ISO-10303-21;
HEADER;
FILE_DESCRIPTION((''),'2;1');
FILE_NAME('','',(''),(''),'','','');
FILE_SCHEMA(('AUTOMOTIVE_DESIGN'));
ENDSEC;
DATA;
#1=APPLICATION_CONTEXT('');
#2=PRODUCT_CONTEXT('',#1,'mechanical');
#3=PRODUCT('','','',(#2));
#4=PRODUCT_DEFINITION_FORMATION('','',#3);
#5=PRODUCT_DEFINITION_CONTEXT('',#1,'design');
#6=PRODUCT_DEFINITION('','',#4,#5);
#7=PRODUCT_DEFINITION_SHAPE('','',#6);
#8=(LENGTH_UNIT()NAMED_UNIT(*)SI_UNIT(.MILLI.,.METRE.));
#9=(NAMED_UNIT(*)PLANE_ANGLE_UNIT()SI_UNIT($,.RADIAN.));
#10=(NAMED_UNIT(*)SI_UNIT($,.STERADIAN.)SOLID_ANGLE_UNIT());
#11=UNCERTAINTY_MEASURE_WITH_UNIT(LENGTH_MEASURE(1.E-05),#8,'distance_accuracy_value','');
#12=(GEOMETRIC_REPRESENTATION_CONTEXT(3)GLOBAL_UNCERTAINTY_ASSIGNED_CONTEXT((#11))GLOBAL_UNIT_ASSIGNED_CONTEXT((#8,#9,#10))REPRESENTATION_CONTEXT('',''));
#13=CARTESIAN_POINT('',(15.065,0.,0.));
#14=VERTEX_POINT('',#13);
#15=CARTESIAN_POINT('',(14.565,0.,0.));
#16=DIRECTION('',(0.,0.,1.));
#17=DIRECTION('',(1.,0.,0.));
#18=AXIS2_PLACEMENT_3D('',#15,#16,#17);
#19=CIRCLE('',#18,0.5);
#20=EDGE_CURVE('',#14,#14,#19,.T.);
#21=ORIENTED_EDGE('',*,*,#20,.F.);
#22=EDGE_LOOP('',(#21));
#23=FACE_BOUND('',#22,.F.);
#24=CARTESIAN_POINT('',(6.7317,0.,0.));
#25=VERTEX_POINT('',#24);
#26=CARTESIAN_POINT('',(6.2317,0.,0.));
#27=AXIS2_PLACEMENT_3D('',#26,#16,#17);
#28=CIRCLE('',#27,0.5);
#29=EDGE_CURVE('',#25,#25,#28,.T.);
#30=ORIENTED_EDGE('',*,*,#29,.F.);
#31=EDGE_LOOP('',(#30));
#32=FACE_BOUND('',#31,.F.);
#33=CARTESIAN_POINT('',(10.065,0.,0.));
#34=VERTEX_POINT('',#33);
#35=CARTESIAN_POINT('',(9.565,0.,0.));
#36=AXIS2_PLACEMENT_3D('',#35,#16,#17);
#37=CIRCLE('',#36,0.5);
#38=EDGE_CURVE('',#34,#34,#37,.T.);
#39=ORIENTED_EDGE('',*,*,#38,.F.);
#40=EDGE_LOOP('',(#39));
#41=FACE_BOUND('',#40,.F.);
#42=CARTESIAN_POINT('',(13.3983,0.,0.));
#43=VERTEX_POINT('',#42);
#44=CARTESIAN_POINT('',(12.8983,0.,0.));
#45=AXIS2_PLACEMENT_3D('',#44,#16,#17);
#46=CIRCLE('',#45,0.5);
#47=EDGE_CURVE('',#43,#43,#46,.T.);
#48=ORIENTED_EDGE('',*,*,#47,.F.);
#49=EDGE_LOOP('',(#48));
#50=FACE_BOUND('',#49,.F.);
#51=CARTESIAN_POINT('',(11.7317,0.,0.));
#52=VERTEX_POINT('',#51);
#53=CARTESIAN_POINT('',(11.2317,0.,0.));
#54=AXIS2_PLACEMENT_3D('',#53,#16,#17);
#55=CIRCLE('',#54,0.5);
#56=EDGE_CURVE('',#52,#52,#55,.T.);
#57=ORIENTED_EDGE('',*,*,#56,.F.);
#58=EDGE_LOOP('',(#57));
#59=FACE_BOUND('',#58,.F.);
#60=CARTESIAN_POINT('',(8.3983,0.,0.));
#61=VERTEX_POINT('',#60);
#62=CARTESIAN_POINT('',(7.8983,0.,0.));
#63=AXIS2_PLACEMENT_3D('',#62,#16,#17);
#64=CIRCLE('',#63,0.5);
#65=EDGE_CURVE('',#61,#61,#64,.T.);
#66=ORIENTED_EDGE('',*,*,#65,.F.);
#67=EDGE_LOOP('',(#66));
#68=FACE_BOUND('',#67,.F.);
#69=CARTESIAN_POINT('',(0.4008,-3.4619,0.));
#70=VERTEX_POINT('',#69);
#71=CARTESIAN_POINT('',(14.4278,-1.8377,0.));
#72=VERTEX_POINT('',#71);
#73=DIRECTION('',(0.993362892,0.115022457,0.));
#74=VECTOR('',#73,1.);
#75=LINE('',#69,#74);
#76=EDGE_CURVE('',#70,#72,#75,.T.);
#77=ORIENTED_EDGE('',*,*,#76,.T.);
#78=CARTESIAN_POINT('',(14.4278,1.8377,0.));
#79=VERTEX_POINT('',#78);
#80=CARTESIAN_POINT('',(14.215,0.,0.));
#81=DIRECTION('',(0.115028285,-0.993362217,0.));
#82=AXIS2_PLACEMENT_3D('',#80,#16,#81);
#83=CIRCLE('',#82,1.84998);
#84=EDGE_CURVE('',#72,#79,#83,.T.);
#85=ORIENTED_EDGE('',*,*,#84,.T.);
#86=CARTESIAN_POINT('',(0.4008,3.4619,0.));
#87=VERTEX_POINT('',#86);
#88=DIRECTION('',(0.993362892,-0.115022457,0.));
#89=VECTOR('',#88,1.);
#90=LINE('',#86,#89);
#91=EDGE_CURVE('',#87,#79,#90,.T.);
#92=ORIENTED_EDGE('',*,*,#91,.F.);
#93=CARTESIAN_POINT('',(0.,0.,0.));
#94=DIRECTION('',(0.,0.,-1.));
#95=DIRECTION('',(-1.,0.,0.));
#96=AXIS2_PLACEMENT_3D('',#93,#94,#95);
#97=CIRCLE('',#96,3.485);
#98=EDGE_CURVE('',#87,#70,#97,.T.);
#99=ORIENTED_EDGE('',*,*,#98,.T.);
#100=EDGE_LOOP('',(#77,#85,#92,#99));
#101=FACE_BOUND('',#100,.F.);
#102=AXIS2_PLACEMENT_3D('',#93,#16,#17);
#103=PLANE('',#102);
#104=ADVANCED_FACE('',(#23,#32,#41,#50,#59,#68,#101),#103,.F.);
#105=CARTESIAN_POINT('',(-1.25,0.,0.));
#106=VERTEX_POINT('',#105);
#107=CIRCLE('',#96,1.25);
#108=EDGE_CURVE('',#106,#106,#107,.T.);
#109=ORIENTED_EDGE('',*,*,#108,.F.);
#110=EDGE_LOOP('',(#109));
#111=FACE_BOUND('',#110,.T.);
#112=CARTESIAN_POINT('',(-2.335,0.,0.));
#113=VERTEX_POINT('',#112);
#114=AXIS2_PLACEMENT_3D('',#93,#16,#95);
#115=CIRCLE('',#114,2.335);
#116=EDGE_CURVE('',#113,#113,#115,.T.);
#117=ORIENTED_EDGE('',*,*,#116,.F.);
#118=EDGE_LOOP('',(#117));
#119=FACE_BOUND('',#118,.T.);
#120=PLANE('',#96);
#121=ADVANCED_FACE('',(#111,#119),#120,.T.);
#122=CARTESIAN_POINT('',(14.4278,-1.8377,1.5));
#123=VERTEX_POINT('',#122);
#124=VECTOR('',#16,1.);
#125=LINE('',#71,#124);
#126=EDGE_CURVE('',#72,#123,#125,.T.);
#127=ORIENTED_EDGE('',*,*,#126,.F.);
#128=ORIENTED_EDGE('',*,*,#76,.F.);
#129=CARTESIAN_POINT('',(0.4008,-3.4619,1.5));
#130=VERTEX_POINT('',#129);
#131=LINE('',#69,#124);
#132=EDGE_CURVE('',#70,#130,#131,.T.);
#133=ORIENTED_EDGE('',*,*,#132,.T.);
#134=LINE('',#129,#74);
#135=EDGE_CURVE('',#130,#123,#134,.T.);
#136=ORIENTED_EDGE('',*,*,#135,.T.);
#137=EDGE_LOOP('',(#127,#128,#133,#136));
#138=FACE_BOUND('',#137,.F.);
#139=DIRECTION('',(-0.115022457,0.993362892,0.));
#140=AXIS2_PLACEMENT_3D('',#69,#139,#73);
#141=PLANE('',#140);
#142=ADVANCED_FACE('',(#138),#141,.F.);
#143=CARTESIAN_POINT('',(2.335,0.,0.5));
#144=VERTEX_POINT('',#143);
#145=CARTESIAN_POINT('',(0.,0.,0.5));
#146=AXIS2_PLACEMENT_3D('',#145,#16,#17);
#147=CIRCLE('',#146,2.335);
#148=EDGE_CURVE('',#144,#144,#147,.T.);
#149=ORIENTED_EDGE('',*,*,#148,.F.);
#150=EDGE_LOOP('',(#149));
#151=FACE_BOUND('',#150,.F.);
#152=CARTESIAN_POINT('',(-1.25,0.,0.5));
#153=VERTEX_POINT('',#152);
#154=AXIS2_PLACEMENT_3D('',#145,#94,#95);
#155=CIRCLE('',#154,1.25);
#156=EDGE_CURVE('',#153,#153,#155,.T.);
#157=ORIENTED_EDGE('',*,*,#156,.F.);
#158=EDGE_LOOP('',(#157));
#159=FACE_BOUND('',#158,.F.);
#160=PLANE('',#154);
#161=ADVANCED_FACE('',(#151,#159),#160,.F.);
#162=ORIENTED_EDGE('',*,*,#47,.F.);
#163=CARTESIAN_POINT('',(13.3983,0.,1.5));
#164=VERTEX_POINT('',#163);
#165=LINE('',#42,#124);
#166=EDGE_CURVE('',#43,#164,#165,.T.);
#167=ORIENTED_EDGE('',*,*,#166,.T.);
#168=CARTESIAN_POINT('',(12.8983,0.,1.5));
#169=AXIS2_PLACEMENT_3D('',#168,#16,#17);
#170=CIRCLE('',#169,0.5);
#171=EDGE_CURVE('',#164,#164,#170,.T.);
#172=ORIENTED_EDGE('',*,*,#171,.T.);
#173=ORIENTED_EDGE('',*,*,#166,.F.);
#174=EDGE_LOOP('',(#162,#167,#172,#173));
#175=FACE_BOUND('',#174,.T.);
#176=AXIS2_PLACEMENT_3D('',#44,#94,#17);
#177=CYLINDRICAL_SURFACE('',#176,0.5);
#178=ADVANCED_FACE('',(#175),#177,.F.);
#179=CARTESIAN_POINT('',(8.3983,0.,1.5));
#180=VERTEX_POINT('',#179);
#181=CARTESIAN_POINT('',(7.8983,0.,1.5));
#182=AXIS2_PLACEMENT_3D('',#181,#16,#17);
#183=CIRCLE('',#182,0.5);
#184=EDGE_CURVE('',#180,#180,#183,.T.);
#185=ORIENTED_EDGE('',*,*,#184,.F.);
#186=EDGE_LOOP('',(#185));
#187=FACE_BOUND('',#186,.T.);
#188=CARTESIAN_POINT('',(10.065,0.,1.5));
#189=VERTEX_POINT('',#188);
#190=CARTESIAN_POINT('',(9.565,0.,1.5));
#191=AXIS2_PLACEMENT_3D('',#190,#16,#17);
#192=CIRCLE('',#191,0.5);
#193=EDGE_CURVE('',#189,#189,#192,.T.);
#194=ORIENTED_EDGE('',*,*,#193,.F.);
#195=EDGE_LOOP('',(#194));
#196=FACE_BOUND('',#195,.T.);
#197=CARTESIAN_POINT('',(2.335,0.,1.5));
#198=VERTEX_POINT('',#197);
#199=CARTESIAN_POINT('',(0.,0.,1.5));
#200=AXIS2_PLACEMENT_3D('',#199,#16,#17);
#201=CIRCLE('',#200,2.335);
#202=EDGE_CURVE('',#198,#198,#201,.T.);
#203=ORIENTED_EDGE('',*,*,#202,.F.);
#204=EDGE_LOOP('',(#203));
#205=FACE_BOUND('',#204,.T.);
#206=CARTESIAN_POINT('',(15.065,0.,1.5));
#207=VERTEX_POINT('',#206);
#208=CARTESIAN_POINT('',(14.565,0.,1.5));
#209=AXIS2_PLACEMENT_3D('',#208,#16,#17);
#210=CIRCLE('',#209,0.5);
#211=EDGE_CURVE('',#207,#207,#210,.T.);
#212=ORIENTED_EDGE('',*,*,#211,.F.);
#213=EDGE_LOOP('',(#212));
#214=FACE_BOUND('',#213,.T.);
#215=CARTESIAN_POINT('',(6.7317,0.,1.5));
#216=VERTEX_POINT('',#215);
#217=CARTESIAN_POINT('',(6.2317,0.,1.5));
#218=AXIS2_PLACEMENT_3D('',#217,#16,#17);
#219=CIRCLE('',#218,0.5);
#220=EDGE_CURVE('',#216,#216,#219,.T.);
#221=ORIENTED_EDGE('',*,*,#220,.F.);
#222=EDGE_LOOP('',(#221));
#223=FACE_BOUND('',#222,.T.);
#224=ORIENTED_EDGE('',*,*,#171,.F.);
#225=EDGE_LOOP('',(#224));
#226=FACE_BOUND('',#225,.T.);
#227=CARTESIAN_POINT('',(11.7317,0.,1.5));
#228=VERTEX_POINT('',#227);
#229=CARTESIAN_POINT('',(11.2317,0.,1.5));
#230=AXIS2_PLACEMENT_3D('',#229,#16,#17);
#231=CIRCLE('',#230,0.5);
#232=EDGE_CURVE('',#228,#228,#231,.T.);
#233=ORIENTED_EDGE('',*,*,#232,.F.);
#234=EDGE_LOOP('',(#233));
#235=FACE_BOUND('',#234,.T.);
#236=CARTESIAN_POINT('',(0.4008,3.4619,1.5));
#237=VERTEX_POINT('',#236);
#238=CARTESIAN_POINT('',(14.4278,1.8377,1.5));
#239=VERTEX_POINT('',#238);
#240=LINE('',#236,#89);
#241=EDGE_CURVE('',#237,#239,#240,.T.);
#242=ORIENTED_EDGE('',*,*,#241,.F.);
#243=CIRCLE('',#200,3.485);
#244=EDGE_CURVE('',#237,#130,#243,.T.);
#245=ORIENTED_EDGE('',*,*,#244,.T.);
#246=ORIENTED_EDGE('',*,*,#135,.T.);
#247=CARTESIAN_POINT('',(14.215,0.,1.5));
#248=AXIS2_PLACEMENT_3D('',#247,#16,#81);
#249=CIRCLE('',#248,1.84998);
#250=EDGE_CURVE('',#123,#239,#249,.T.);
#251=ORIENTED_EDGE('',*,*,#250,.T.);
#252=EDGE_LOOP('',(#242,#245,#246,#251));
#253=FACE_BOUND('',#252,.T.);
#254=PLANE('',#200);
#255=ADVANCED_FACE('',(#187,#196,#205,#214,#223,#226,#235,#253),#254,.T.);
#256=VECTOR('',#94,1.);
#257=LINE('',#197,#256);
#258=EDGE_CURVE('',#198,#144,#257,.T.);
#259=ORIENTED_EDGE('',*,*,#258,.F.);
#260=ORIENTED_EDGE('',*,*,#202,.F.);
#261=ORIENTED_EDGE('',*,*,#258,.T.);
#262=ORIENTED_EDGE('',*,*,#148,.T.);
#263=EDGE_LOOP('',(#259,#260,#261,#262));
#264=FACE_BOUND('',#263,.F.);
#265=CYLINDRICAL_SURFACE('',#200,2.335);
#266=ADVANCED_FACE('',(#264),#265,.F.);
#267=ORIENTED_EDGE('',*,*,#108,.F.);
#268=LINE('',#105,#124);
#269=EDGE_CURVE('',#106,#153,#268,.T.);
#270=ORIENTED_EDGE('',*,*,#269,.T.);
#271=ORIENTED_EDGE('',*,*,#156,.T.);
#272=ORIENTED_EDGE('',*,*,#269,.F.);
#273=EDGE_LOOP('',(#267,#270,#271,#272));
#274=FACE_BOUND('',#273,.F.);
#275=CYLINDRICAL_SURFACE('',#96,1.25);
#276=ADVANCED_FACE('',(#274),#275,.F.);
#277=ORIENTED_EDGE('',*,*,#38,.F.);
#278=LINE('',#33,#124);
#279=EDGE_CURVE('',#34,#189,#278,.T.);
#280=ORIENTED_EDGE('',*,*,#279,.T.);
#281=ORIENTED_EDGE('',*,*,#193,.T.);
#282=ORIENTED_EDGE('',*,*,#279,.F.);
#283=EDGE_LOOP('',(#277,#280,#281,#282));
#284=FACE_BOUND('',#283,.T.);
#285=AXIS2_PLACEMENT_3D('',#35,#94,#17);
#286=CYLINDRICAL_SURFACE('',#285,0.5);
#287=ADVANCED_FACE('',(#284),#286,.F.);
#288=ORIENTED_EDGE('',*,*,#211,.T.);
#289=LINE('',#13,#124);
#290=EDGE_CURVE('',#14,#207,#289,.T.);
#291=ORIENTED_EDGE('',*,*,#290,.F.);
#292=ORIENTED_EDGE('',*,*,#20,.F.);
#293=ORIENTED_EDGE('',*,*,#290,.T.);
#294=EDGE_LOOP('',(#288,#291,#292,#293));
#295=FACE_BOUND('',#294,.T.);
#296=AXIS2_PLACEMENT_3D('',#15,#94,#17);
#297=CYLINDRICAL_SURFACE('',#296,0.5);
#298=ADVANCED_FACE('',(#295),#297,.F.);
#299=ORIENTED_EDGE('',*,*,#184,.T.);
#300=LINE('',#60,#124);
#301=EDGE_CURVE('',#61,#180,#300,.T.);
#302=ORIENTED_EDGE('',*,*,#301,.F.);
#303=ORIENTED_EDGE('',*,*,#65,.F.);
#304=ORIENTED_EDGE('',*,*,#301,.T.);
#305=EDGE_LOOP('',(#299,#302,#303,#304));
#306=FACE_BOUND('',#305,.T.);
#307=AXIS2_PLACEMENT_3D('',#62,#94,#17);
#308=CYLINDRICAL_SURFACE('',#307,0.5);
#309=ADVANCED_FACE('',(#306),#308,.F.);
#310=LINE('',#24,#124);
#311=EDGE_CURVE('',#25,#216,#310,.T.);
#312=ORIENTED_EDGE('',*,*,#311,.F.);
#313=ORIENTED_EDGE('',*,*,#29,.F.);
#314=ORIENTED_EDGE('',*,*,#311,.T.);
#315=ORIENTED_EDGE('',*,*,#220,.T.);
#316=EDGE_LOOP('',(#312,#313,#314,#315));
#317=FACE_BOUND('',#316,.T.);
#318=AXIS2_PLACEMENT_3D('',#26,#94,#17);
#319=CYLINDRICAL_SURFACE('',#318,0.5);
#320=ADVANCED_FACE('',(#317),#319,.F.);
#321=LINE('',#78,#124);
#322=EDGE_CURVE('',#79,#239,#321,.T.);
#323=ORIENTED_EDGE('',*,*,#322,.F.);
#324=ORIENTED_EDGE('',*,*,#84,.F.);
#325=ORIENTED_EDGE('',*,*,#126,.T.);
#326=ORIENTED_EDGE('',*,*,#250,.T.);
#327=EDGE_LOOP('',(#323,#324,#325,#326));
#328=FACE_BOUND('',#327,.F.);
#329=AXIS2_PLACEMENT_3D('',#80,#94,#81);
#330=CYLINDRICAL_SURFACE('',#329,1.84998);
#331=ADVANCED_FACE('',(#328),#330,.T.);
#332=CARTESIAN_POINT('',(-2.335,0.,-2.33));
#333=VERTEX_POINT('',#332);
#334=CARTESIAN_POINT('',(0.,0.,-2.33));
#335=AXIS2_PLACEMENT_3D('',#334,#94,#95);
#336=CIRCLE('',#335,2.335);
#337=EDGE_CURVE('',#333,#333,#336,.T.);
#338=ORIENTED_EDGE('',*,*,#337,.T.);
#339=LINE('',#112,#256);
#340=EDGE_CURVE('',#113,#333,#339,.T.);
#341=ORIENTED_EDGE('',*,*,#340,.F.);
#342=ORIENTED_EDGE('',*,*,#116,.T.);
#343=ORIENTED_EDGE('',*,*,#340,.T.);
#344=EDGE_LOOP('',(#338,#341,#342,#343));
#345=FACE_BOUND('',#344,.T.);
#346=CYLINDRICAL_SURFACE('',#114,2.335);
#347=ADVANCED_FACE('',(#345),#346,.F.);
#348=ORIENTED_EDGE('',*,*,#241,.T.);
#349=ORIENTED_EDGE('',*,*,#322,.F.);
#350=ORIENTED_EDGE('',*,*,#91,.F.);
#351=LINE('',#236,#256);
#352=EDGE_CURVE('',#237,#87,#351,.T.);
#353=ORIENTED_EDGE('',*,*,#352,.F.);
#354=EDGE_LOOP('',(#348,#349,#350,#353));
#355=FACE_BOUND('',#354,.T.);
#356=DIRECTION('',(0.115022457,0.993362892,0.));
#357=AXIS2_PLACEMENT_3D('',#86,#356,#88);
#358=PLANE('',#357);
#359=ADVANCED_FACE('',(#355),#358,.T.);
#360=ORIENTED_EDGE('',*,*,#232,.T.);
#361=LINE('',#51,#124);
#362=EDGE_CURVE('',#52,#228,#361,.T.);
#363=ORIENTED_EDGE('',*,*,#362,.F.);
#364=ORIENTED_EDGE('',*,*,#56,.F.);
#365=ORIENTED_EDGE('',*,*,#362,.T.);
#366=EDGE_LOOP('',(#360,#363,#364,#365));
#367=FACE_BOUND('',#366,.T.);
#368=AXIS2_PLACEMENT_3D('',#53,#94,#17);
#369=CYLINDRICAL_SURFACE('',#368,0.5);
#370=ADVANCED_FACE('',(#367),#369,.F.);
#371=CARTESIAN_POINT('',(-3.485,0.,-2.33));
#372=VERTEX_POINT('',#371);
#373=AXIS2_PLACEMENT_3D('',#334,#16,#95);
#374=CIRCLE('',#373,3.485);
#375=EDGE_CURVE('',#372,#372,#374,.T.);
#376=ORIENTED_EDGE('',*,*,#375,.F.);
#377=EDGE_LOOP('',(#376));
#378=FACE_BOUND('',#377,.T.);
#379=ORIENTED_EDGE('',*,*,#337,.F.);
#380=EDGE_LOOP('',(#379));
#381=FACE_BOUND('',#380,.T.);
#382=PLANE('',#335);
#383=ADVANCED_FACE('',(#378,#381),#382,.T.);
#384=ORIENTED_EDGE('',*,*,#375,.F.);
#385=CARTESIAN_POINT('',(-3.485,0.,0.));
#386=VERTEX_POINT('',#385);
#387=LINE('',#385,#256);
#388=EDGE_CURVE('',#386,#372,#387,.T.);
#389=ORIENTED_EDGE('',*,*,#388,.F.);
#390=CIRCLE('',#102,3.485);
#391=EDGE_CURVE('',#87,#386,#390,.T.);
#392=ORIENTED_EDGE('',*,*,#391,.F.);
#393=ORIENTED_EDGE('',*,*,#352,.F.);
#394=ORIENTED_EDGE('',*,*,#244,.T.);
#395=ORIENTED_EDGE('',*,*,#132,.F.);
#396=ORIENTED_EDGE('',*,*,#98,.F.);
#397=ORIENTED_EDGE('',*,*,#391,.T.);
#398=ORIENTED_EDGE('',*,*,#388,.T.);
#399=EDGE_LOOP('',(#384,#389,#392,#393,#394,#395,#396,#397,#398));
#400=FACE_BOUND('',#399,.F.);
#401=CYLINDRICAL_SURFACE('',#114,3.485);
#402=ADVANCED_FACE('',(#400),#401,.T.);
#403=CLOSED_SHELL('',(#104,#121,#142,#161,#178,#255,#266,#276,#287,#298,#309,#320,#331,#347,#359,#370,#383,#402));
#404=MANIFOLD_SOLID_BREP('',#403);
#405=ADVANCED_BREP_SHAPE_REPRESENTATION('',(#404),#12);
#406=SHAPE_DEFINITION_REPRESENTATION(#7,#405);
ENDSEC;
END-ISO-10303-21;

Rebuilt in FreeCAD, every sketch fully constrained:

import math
import FreeCAD as App
import Part
import Sketcher
Q = App.Units.Quantity

doc = App.newDocument("Part")
params = doc.addObject("Spreadsheet::Sheet", "Params")
for row, (alias, value) in enumerate([
    ("sketch1_diameter", "1 mm"),
    ("sketch1_radius", "1.85 mm"),
    ("pad1_length", "1.5 mm"),
    ("sketch2_diameter", "4.67 mm"),
    ("pocket1_length", "1.5 mm"),
    ("sketch3_diameter", "6.97 mm"),
    ("sketch3_diameter2", "4.67 mm"),
    ("pad2_length", "2.33 mm"),
    ("sketch4_diameter", "2.5 mm"),
    ("sketch4_diameter2", "6.97 mm"),
    ("pad3_length", "0.5 mm"),
], start=1):
    params.set(f"A{row}", alias)
    params.set(f"B{row}", "=" + value)
    params.setAlias(f"B{row}", alias)

body = doc.addObject("PartDesign::Body", "Body")

sketch1 = body.newObject("Sketcher::SketchObject", "Sketch")
sketch1.AttachmentSupport = (doc.getObject("XY_Plane"), [""])
sketch1.MapMode = "FlatFace"
sketch1.addGeometry([
    Part.ArcOfCircle(Part.Circle(App.Vector(0, 0, 0), App.Vector(0, 0, 1), 3.5), math.radians(83), math.radians(277)),
    Part.LineSegment(App.Vector(0.4, -3.5, 0), App.Vector(14.4, -1.8, 0)),
    Part.ArcOfCircle(Part.Circle(App.Vector(14.2, 0, 0), App.Vector(0, 0, 1), 1.8), math.radians(-83), math.radians(83)),
    Part.LineSegment(App.Vector(14.4, 1.8, 0), App.Vector(0.4, 3.5, 0)),
    Part.Circle(App.Vector(12.9, 0, 0), App.Vector(0, 0, 1), 0.5),
    Part.Circle(App.Vector(14.6, 0, 0), App.Vector(0, 0, 1), 0.5),
    Part.Circle(App.Vector(6.2, 0, 0), App.Vector(0, 0, 1), 0.5),
    Part.Circle(App.Vector(7.9, 0, 0), App.Vector(0, 0, 1), 0.5),
    Part.Circle(App.Vector(9.6, 0, 0), App.Vector(0, 0, 1), 0.5),
    Part.Circle(App.Vector(11.2, 0, 0), App.Vector(0, 0, 1), 0.5),
], False)
sketch1.addConstraint([
    Sketcher.Constraint("Tangent", 0, 2, 1, 1),
    Sketcher.Constraint("Tangent", 1, 2, 2, 1),
    Sketcher.Constraint("Tangent", 2, 2, 3, 1),
    Sketcher.Constraint("Tangent", 3, 2, 0, 1),
    Sketcher.Constraint("Coincident", 0, 3, -1, 1),
    Sketcher.Constraint("Equal", 4, 5),
    Sketcher.Constraint("Equal", 5, 6),
    Sketcher.Constraint("Equal", 6, 7),
    Sketcher.Constraint("Equal", 7, 8),
    Sketcher.Constraint("Equal", 8, 9),
    Sketcher.Constraint("PointOnObject", 2, 3, -1),
    Sketcher.Constraint("PointOnObject", 4, 3, -1),
    Sketcher.Constraint("PointOnObject", 5, 3, -1),
    Sketcher.Constraint("PointOnObject", 6, 3, -1),
    Sketcher.Constraint("PointOnObject", 7, 3, -1),
    Sketcher.Constraint("PointOnObject", 8, 3, -1),
    Sketcher.Constraint("PointOnObject", 9, 3, -1),
    Sketcher.Constraint("Diameter", 4, Q("1 mm")),
    Sketcher.Constraint("Radius", 2, Q("1.85 mm")),
    Sketcher.Constraint("Radius", 0, Q("3.485 mm")),
    Sketcher.Constraint("DistanceX", 7, 3, 4, 3, Q("5 mm")),
    Sketcher.Constraint("DistanceX", 8, 3, 5, 3, Q("5 mm")),
    Sketcher.Constraint("DistanceX", 4, 3, 5, 3, Q("1.6667 mm")),
    Sketcher.Constraint("DistanceX", 6, 3, 7, 3, Q("1.6666 mm")),
    Sketcher.Constraint("DistanceX", 9, 3, 4, 3, Q("1.6666 mm")),
    Sketcher.Constraint("DistanceX", 2, 3, 5, 3, Q("0.35 mm")),
    Sketcher.Constraint("DistanceX", -1, 1, 2, 3, Q("14.215 mm")),
])
sketch1.setExpression("Constraints[17]", "Params.sketch1_diameter")
sketch1.setExpression("Constraints[18]", "Params.sketch1_radius")
pad1 = body.newObject("PartDesign::Pad", "Pad")
pad1.Profile = sketch1
pad1.setExpression("Length", "Params.pad1_length")

sketch2 = body.newObject("Sketcher::SketchObject", "Sketch001")
sketch2.AttachmentSupport = (doc.getObject("XY_Plane"), [""])
sketch2.MapMode = "FlatFace"
sketch2.AttachmentOffset = App.Placement(App.Vector(0, 0, 1.5), App.Rotation())
sketch2.addGeometry(Part.Circle(App.Vector(0, 0, 0), App.Vector(0, 0, 1), 2.3), False)
sketch2.addConstraint([
    Sketcher.Constraint("Coincident", 0, 3, -1, 1),
    Sketcher.Constraint("Diameter", 0, Q("4.67 mm")),
])
sketch2.setExpression("Constraints[1]", "Params.sketch2_diameter")
pocket1 = body.newObject("PartDesign::Pocket", "Pocket")
pocket1.Profile = sketch2
pocket1.setExpression("Length", "Params.pocket1_length")

sketch3 = body.newObject("Sketcher::SketchObject", "Sketch002")
sketch3.AttachmentSupport = (doc.getObject("XY_Plane"), [""])
sketch3.MapMode = "FlatFace"
sketch3.addGeometry([
    Part.Circle(App.Vector(0, 0, 0), App.Vector(0, 0, 1), 3.5),
    Part.Circle(App.Vector(0, 0, 0), App.Vector(0, 0, 1), 2.3),
], False)
sketch3.addConstraint([
    Sketcher.Constraint("Coincident", 0, 3, -1, 1),
    Sketcher.Constraint("Coincident", 1, 3, -1, 1),
    Sketcher.Constraint("Diameter", 0, Q("6.97 mm")),
    Sketcher.Constraint("Diameter", 1, Q("4.67 mm")),
])
sketch3.setExpression("Constraints[2]", "Params.sketch3_diameter")
sketch3.setExpression("Constraints[3]", "Params.sketch3_diameter2")
pad2 = body.newObject("PartDesign::Pad", "Pad001")
pad2.Profile = sketch3
pad2.setExpression("Length", "Params.pad2_length")
pad2.Reversed = True

sketch4 = body.newObject("Sketcher::SketchObject", "Sketch003")
sketch4.AttachmentSupport = (doc.getObject("XY_Plane"), [""])
sketch4.MapMode = "FlatFace"
sketch4.addGeometry([
    Part.Circle(App.Vector(0, 0, 0), App.Vector(0, 0, 1), 3.5),
    Part.Circle(App.Vector(0, 0, 0), App.Vector(0, 0, 1), 1.2),
], False)
sketch4.addConstraint([
    Sketcher.Constraint("Coincident", 0, 3, -1, 1),
    Sketcher.Constraint("Coincident", 1, 3, -1, 1),
    Sketcher.Constraint("Diameter", 1, Q("2.5 mm")),
    Sketcher.Constraint("Diameter", 0, Q("6.97 mm")),
])
sketch4.setExpression("Constraints[2]", "Params.sketch4_diameter")
sketch4.setExpression("Constraints[3]", "Params.sketch4_diameter2")
pad3 = body.newObject("PartDesign::Pad", "Pad002")
pad3.Profile = sketch4
pad3.setExpression("Length", "Params.pad3_length")

doc.recompute()
